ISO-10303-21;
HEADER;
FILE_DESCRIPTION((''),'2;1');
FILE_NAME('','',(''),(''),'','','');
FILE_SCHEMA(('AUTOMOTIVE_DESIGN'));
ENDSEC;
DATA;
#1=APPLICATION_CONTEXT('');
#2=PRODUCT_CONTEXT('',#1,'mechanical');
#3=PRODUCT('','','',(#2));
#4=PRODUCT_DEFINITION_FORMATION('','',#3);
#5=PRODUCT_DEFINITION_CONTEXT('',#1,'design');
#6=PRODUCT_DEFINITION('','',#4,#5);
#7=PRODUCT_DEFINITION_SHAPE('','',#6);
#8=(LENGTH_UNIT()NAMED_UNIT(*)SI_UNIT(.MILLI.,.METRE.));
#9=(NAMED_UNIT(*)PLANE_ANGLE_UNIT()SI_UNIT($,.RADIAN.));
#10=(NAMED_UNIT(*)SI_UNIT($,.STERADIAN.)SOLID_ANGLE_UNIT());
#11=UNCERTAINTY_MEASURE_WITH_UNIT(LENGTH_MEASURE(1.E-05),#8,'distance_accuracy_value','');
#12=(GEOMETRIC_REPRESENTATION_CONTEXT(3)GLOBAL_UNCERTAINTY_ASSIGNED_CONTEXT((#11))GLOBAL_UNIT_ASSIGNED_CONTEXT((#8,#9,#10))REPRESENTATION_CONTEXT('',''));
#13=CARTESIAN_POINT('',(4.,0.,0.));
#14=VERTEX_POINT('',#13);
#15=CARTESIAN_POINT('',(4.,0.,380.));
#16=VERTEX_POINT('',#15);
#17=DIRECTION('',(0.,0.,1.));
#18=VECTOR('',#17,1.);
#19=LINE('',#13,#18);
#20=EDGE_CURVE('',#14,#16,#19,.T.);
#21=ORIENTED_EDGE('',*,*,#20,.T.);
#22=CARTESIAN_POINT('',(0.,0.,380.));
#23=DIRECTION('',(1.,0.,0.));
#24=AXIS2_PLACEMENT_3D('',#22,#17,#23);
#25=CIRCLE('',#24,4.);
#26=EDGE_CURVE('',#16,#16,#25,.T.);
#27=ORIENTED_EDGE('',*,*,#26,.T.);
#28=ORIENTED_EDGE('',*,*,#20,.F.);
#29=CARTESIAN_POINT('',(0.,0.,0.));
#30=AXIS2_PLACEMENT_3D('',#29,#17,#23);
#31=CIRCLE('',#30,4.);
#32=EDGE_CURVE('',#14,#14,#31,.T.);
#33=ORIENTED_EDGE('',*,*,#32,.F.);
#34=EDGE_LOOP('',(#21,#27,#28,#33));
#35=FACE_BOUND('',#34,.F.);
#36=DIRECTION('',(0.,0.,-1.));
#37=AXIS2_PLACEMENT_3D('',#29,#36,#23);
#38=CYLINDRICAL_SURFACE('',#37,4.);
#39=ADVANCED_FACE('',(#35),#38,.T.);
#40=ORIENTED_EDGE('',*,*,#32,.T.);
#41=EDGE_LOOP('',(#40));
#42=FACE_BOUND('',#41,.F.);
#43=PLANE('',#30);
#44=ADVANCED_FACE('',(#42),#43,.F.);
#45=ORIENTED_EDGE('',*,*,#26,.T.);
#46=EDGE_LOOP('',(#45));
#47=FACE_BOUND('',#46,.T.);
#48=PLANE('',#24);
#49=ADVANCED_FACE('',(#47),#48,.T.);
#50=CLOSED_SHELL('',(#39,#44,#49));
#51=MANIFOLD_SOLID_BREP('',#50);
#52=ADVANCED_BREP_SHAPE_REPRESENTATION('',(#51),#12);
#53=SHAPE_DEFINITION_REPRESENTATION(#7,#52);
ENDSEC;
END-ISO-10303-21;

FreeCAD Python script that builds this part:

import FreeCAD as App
import Part
import Sketcher
Q = App.Units.Quantity

doc = App.newDocument("Part")
body = doc.addObject("PartDesign::Body", "Body")

# Sketch on XY plane
sketch1 = body.newObject("Sketcher::SketchObject", "Sketch")
sketch1.AttachmentSupport = (doc.getObject("XY_Plane"), [""])
sketch1.MapMode = "FlatFace"
sketch1.addGeometry(Part.Circle(App.Vector(0, 0, 0), App.Vector(0, 0, 1), 4), False)
sketch1.addConstraint(Sketcher.Constraint("Coincident", 0, 3, -1, 1))
sketch1.addConstraint(Sketcher.Constraint("Diameter", 0, Q("8 mm")))
pad1 = body.newObject("PartDesign::Pad", "Pad")
pad1.Profile = sketch1
pad1.Length = 380

doc.recompute()
